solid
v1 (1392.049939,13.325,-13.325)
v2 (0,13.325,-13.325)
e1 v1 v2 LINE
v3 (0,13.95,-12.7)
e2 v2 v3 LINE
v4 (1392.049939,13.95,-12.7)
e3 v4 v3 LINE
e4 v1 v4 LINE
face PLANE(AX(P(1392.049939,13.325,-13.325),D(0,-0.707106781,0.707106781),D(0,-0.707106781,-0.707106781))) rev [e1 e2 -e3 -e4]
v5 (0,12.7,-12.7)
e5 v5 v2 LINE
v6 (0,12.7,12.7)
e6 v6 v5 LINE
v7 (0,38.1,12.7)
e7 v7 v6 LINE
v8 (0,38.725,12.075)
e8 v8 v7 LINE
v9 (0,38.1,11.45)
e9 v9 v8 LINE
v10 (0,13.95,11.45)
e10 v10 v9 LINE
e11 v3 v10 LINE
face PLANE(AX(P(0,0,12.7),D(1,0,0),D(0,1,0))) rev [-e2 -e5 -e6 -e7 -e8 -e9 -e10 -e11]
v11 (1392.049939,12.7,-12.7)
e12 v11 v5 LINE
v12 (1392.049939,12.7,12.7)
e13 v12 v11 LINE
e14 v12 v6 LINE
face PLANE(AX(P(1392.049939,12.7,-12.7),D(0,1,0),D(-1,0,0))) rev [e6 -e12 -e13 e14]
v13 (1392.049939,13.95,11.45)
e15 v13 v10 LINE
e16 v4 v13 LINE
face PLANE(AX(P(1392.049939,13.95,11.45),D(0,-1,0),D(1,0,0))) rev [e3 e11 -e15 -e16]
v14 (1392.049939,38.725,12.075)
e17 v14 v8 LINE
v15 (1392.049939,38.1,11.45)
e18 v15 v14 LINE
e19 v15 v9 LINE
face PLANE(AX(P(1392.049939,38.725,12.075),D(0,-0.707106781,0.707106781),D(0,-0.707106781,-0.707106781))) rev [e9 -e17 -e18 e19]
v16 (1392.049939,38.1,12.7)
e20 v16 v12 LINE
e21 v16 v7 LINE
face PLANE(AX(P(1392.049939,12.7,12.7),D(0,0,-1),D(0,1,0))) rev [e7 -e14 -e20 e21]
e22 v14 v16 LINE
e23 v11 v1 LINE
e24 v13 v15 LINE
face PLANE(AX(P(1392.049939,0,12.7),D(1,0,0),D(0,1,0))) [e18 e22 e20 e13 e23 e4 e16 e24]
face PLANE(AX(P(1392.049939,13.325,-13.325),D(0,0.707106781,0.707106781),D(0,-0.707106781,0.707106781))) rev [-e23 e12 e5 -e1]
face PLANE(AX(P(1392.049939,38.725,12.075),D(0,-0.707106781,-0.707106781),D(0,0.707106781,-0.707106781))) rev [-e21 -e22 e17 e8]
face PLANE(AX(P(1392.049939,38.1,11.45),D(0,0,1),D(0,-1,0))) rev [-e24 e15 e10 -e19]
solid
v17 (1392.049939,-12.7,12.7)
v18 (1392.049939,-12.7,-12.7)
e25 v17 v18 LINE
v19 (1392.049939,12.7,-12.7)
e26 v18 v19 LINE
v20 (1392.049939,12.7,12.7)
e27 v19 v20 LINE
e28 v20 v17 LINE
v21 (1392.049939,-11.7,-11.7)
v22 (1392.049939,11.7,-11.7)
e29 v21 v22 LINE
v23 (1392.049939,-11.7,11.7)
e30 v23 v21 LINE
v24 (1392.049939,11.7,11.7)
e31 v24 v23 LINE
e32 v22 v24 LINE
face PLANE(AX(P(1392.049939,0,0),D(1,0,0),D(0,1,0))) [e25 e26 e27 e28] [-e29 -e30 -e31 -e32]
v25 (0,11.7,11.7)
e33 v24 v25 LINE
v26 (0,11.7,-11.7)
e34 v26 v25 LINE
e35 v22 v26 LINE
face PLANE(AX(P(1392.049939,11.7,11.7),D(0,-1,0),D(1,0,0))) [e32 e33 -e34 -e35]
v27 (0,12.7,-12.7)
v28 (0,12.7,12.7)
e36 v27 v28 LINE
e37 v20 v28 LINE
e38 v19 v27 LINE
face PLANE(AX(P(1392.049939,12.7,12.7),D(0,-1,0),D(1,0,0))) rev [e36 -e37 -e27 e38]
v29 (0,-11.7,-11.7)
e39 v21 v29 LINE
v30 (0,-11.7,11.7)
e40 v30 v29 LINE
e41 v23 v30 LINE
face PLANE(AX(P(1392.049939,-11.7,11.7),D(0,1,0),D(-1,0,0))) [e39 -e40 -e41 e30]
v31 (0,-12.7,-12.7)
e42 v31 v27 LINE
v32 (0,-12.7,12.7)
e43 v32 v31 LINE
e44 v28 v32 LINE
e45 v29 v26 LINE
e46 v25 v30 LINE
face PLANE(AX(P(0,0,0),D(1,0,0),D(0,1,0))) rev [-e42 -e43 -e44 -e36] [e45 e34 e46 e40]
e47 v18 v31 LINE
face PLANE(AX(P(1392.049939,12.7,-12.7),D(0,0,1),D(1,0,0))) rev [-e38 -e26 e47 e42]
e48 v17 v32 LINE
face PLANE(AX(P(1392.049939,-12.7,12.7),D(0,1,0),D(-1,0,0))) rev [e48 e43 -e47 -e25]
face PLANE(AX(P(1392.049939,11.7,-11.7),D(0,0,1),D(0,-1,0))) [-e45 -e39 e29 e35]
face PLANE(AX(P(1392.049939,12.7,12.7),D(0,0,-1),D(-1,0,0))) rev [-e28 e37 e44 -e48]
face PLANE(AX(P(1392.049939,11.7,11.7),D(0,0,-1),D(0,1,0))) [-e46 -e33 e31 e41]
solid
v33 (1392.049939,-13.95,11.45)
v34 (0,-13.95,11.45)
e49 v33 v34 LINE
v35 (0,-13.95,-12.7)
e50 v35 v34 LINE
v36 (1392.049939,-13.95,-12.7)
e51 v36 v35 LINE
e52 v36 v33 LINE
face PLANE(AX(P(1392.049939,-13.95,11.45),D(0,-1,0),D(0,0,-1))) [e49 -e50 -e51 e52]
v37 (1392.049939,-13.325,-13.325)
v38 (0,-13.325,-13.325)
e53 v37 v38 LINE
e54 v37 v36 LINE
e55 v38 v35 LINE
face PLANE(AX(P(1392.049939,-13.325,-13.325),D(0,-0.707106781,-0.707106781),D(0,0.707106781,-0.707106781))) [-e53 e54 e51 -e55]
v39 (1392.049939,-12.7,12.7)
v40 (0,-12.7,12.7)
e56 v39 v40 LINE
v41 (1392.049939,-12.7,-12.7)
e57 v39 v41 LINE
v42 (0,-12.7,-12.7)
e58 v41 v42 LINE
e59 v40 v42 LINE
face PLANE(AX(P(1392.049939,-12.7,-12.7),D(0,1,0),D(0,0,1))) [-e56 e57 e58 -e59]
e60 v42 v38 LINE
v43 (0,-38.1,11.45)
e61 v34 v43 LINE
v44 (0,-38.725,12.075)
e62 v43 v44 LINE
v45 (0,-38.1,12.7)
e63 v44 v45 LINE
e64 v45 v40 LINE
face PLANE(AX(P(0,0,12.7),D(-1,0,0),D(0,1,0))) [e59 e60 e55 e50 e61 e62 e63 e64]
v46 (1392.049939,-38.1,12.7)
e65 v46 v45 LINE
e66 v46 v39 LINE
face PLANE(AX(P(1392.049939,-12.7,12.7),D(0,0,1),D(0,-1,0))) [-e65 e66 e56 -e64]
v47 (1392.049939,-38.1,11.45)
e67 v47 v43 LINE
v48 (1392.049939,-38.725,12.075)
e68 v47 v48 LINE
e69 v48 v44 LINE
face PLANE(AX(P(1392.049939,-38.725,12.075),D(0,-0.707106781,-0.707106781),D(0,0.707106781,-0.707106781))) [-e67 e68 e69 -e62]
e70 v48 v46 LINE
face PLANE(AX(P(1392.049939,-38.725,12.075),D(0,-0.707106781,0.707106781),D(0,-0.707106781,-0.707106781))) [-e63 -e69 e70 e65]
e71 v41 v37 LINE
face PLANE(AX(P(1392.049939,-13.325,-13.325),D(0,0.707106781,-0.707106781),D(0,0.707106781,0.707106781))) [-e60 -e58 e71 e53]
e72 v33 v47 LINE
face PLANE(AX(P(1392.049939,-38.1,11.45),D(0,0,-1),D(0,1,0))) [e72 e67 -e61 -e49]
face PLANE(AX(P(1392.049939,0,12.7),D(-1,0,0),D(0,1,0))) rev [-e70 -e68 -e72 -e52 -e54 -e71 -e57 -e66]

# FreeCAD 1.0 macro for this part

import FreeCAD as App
import Part
import Sketcher

V = App.Vector

doc = App.newDocument("Part")
body = doc.addObject("PartDesign::Body", "Body")

sketch1 = body.newObject("Sketcher::SketchObject", "Sketch")
sketch1.AttachmentSupport = (doc.getObject("YZ_Plane"), [""])
sketch1.MapMode = "FlatFace"
sketch1.addGeometry([
    Part.LineSegment(V(13, 13, 0), V(-13, 13, 0)),
    Part.LineSegment(V(-13, 13, 0), V(-13, -13, 0)),
    Part.LineSegment(V(-13, -13, 0), V(13, -13, 0)),
    Part.LineSegment(V(13, -13, 0), V(13, 13, 0)),
    Part.LineSegment(V(-12, -12, 0), V(-12, 12, 0)),
    Part.LineSegment(V(-12, 12, 0), V(12, 12, 0)),
    Part.LineSegment(V(12, 12, 0), V(12, -12, 0)),
    Part.LineSegment(V(12, -12, 0), V(-12, -12, 0)),
], False)
sketch1.addConstraint([
    Sketcher.Constraint("Coincident", 0, 2, 1, 1),
    Sketcher.Constraint("Coincident", 1, 2, 2, 1),
    Sketcher.Constraint("Coincident", 2, 2, 3, 1),
    Sketcher.Constraint("Coincident", 3, 2, 0, 1),
    Sketcher.Constraint("Coincident", 4, 2, 5, 1),
    Sketcher.Constraint("Coincident", 5, 2, 6, 1),
    Sketcher.Constraint("Coincident", 6, 2, 7, 1),
    Sketcher.Constraint("Coincident", 7, 2, 4, 1),
    Sketcher.Constraint("Horizontal", 0),
    Sketcher.Constraint("Vertical", 1),
    Sketcher.Constraint("Horizontal", 2),
    Sketcher.Constraint("Vertical", 3),
    Sketcher.Constraint("Vertical", 4),
    Sketcher.Constraint("Horizontal", 5),
    Sketcher.Constraint("Vertical", 6),
    Sketcher.Constraint("Horizontal", 7),
    Sketcher.Constraint("Symmetric", 0, 2, 2, 2, -1, 1),
    Sketcher.Constraint("Symmetric", 4, 2, 6, 2, -1, 1),
    Sketcher.Constraint("Equal", 2, 1),
    Sketcher.Constraint("Equal", 7, 4),
    Sketcher.Constraint("DistanceX", 0, 2, 0, 1, 25.4),
    Sketcher.Constraint("DistanceX", 5, 1, 5, 2, 23.4),
])
pad1 = body.newObject("PartDesign::Pad", "Pad")
pad1.Profile = sketch1
pad1.Length = 1392.049939
body2 = doc.addObject("PartDesign::Body", "Body001")

sketch2 = body2.newObject("Sketcher::SketchObject", "Sketch001")
sketch2.AttachmentSupport = (doc.getObject("YZ_Plane001"), [""])
sketch2.MapMode = "FlatFace"
sketch2.addGeometry([
    Part.LineSegment(V(13.9, 11.4, 0), V(38.1, 11.4, 0)),
    Part.LineSegment(V(38.1, 11.4, 0), V(38.7, 12.1, 0)),
    Part.LineSegment(V(38.7, 12.1, 0), V(38.1, 12.7, 0)),
    Part.LineSegment(V(38.1, 12.7, 0), V(12.7, 12.7, 0)),
    Part.LineSegment(V(12.7, 12.7, 0), V(12.7, -12.7, 0)),
    Part.LineSegment(V(12.7, -12.7, 0), V(13.3, -13.3, 0)),
    Part.LineSegment(V(13.3, -13.3, 0), V(13.9, -12.7, 0)),
    Part.LineSegment(V(13.9, -12.7, 0), V(13.9, 11.4, 0)),
], False)
sketch2.addConstraint([
    Sketcher.Constraint("Coincident", 0, 2, 1, 1),
    Sketcher.Constraint("Coincident", 1, 2, 2, 1),
    Sketcher.Constraint("Coincident", 2, 2, 3, 1),
    Sketcher.Constraint("Coincident", 3, 2, 4, 1),
    Sketcher.Constraint("Coincident", 4, 2, 5, 1),
    Sketcher.Constraint("Coincident", 5, 2, 6, 1),
    Sketcher.Constraint("Coincident", 6, 2, 7, 1),
    Sketcher.Constraint("Coincident", 7, 2, 0, 1),
    Sketcher.Constraint("Horizontal", 0),
    Sketcher.Constraint("Horizontal", 3),
    Sketcher.Constraint("Vertical", 4),
    Sketcher.Constraint("Vertical", 7),
    Sketcher.Constraint("Perpendicular", 1, 2),
    Sketcher.Constraint("Parallel", 2, 5),
    Sketcher.Constraint("Perpendicular", 5, 6),
    Sketcher.Constraint("Horizontal", 4, 2, 6, 2),
    Sketcher.Constraint("Vertical", 0, 2, 2, 2),
    Sketcher.Constraint("Equal", 3, 4),
    Sketcher.Constraint("Equal", 0, 7),
    Sketcher.Constraint("Equal", 1, 2),
    Sketcher.Constraint("DistanceX", 3, 2, 3, 1, 25.4),
    Sketcher.Constraint("DistanceX", 0, 1, 0, 2, 24.15),
    Sketcher.Constraint("DistanceX", -1, 1, 0, 2, 38.1),
    Sketcher.Constraint("DistanceY", -1, 1, 2, 2, 12.7),
])
pad2 = body2.newObject("PartDesign::Pad", "Pad001")
pad2.Profile = sketch2
pad2.Length = 1392.049939
body3 = doc.addObject("PartDesign::Body", "Body002")

sketch3 = body3.newObject("Sketcher::SketchObject", "Sketch002")
sketch3.AttachmentSupport = (doc.getObject("YZ_Plane002"), [""])
sketch3.MapMode = "FlatFace"
sketch3.addGeometry([
    Part.LineSegment(V(-13.9, 11.4, 0), V(-38.1, 11.4, 0)),
    Part.LineSegment(V(-38.1, 11.4, 0), V(-38.7, 12.1, 0)),
    Part.LineSegment(V(-38.7, 12.1, 0), V(-38.1, 12.7, 0)),
    Part.LineSegment(V(-38.1, 12.7, 0), V(-12.7, 12.7, 0)),
    Part.LineSegment(V(-12.7, 12.7, 0), V(-12.7, -12.7, 0)),
    Part.LineSegment(V(-12.7, -12.7, 0), V(-13.3, -13.3, 0)),
    Part.LineSegment(V(-13.3, -13.3, 0), V(-13.9, -12.7, 0)),
    Part.LineSegment(V(-13.9, -12.7, 0), V(-13.9, 11.4, 0)),
], False)
sketch3.addConstraint([
    Sketcher.Constraint("Coincident", 0, 2, 1, 1),
    Sketcher.Constraint("Coincident", 1, 2, 2, 1),
    Sketcher.Constraint("Coincident", 2, 2, 3, 1),
    Sketcher.Constraint("Coincident", 3, 2, 4, 1),
    Sketcher.Constraint("Coincident", 4, 2, 5, 1),
    Sketcher.Constraint("Coincident", 5, 2, 6, 1),
    Sketcher.Constraint("Coincident", 6, 2, 7, 1),
    Sketcher.Constraint("Coincident", 7, 2, 0, 1),
    Sketcher.Constraint("Horizontal", 0),
    Sketcher.Constraint("Horizontal", 3),
    Sketcher.Constraint("Vertical", 4),
    Sketcher.Constraint("Vertical", 7),
    Sketcher.Constraint("Perpendicular", 1, 2),
    Sketcher.Constraint("Parallel", 2, 5),
    Sketcher.Constraint("Perpendicular", 5, 6),
    Sketcher.Constraint("Horizontal", 4, 2, 6, 2),
    Sketcher.Constraint("Vertical", 0, 2, 2, 2),
    Sketcher.Constraint("Equal", 3, 4),
    Sketcher.Constraint("Equal", 0, 7),
    Sketcher.Constraint("Equal", 1, 2),
    Sketcher.Constraint("DistanceX", 3, 1, 3, 2, 25.4),
    Sketcher.Constraint("DistanceX", 0, 2, 0, 1, 24.15),
    Sketcher.Constraint("DistanceX", 0, 2, -1, 1, 38.1),
    Sketcher.Constraint("DistanceY", -1, 1, 2, 2, 12.7),
])
pad3 = body3.newObject("PartDesign::Pad", "Pad002")
pad3.Profile = sketch3
pad3.Length = 1392.049939

doc.recompute()
